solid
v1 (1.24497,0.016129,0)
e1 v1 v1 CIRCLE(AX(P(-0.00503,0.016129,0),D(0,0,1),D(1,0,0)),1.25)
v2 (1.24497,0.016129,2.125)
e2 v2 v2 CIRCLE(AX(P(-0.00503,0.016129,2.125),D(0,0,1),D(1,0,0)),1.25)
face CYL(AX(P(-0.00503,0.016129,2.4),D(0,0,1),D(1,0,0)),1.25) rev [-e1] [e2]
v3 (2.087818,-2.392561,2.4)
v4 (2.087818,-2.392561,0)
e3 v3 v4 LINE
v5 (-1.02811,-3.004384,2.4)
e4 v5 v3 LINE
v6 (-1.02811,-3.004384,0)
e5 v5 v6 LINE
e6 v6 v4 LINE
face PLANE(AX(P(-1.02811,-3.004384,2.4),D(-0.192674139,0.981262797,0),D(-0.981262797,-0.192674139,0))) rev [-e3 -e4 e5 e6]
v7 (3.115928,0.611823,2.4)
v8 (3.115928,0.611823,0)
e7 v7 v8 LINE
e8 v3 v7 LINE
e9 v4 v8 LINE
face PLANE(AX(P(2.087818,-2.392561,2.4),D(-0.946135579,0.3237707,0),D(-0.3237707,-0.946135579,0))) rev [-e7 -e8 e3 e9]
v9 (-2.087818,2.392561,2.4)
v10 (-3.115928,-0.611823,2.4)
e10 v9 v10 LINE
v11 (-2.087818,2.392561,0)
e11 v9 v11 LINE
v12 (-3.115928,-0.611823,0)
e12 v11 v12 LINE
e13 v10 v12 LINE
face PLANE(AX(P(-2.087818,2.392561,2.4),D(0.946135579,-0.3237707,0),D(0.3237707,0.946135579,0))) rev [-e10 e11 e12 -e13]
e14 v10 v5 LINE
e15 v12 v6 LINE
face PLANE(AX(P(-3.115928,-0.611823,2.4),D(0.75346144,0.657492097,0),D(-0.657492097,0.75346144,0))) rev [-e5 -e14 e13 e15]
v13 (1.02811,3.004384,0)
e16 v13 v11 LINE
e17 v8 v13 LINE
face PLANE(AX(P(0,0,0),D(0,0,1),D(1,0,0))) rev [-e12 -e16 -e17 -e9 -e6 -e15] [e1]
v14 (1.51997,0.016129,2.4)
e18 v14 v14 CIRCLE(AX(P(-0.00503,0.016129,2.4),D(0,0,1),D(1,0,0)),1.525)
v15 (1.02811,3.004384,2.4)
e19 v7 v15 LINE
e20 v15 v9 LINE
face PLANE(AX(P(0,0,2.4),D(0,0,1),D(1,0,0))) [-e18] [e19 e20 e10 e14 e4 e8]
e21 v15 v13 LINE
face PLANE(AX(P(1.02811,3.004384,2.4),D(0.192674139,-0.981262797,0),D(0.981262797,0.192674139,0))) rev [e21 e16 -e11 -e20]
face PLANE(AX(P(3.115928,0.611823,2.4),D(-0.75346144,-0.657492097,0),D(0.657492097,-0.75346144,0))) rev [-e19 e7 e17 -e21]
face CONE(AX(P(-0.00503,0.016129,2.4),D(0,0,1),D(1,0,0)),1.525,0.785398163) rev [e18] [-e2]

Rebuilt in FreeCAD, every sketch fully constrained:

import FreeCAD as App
import Part
import Sketcher


def add_polygon(sketch, points):
    """Adds a closed chain of lines whose ends are joined by coincident constraints."""
    first, n = sketch.GeometryCount, len(points)
    for a, b in zip(points, points[1:] + points[:1]):
        sketch.addGeometry(Part.LineSegment(App.Vector(*a, 0), App.Vector(*b, 0)), False)
    for i in range(n):
        sketch.addConstraint(Sketcher.Constraint("Coincident", first + i, 2, first + (i + 1) % n, 1))

doc = App.newDocument("Part")
body = doc.addObject("PartDesign::Body", "Body")

sketch1 = body.newObject("Sketcher::SketchObject", "Sketch")
sketch1.AttachmentSupport = (doc.getObject("XY_Plane"), [""])
sketch1.MapMode = "FlatFace"
add_polygon(sketch1, [(2.1, -2.4), (3.1, 0.6), (1, 3), (-2.1, 2.4), (-3.1, -0.6), (-1, -3)])
sketch1.addConstraint(Sketcher.Constraint("Symmetric", 0, 2, 3, 2, -1, 1))
sketch1.addConstraint(Sketcher.Constraint("Symmetric", 1, 2, 4, 2, -1, 1))
sketch1.addConstraint(Sketcher.Constraint("Symmetric", 2, 2, 5, 2, -1, 1))
sketch1.addConstraint(Sketcher.Constraint("Equal", 0, 1))
sketch1.addConstraint(Sketcher.Constraint("Equal", 1, 2))
sketch1.addConstraint(Sketcher.Constraint("DistanceX", -1, 1, 1, 2, 1.02811))
sketch1.addConstraint(Sketcher.Constraint("DistanceY", -1, 1, 2, 2, 2.392561))
sketch1.addConstraint(Sketcher.Constraint("DistanceY", 0, 2, 1, 2, 2.392561))
sketch1.addConstraint(Sketcher.Constraint("DistanceY", 0, 2, 2, 2, 1.780739))
pad1 = body.newObject("PartDesign::Pad", "Pad")
pad1.Profile = sketch1
pad1.Length = 2.4

sketch2 = body.newObject("Sketcher::SketchObject", "Sketch001")
sketch2.AttachmentSupport = (doc.getObject("XY_Plane"), [""])
sketch2.MapMode = "FlatFace"
sketch2.AttachmentOffset = App.Placement(App.Vector(0, 0, 2.4), App.Rotation())
sketch2.addGeometry(Part.Circle(App.Vector(0, 0, 0), App.Vector(0, 0, 1), 1.2), False)
sketch2.addConstraint(Sketcher.Constraint("Diameter", 0, 2.5))
sketch2.addConstraint(Sketcher.Constraint("DistanceX", 0, 3, -1, 1, 0.00503))
sketch2.addConstraint(Sketcher.Constraint("DistanceY", -1, 1, 0, 3, 0.016129))
doc.recompute()
hole = body.newObject("PartDesign::Hole", "Hole")
hole.Profile = sketch2
hole.ThreadType = "None"
hole.Diameter = 2.5
hole.DepthType = "ThroughAll"
hole.HoleCutType = "Countersink"
hole.HoleCutDiameter = 3.05
hole.HoleCutCountersinkAngle = 90

doc.recompute()
